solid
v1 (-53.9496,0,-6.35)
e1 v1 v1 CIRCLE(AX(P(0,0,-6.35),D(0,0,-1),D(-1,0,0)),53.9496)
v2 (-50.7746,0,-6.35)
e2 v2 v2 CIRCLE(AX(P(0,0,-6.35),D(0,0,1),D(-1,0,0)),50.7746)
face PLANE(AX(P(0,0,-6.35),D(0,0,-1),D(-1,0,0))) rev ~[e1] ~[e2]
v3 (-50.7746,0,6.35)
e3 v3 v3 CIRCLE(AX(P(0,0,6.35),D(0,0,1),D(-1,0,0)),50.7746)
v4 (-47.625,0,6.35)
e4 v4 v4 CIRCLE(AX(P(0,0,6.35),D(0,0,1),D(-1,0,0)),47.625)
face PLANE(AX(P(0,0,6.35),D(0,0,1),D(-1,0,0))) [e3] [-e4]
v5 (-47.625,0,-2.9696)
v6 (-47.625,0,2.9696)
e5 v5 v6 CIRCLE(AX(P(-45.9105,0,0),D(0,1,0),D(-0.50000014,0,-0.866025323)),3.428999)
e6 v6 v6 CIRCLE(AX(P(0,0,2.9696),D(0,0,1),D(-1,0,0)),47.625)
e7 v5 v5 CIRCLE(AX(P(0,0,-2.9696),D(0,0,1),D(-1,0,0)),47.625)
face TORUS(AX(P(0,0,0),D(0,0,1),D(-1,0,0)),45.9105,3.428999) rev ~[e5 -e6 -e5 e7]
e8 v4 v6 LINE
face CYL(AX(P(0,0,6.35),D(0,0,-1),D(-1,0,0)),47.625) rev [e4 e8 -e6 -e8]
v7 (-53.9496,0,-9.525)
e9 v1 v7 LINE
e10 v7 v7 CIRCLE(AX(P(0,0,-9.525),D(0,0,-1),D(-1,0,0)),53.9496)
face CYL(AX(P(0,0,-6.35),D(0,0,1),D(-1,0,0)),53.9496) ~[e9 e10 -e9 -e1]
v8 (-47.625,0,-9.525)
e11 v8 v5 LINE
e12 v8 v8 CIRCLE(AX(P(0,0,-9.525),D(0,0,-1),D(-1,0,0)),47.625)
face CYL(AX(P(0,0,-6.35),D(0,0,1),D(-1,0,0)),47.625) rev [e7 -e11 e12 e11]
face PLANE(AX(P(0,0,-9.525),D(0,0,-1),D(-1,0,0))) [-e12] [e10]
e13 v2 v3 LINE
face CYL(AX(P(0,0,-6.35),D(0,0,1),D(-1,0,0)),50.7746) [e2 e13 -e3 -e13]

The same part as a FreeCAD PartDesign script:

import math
import FreeCAD as App
import Part
import Sketcher
from FreeCAD import Vector
Q = App.Units.Quantity

doc = App.newDocument("Part")
body = doc.addObject("PartDesign::Body", "Body")

sketch1 = body.newObject("Sketcher::SketchObject", "Sketch")
sketch1.AttachmentSupport = (doc.getObject("XZ_Plane"), [""])
sketch1.MapMode = "FlatFace"
sketch1.addGeometry(Part.LineSegment(Vector(-50.8, -6.3, 0), Vector(-50.8, 6.3, 0)), False)
sketch1.addGeometry(Part.LineSegment(Vector(-50.8, 6.3, 0), Vector(-47.6, 6.3, 0)), False)
sketch1.addGeometry(Part.LineSegment(Vector(-47.6, 6.3, 0), Vector(-47.6, 3, 0)), False)
sketch1.addGeometry(Part.ArcOfCircle(Part.Circle(Vector(-45.9, 0, 0), Vector(0, 0, 1), 3.4), math.radians(120), math.radians(240)), False)
sketch1.addGeometry(Part.LineSegment(Vector(-47.6, -3, 0), Vector(-47.6, -6.3, 0)), False)
sketch1.addGeometry(Part.LineSegment(Vector(-47.6, -6.3, 0), Vector(-50.8, -6.3, 0)), False)
sketch1.addConstraint(Sketcher.Constraint("Coincident", 0, 2, 1, 1))
sketch1.addConstraint(Sketcher.Constraint("Coincident", 1, 2, 2, 1))
sketch1.addConstraint(Sketcher.Constraint("Coincident", 2, 2, 3, 1))
sketch1.addConstraint(Sketcher.Constraint("Coincident", 3, 2, 4, 1))
sketch1.addConstraint(Sketcher.Constraint("Coincident", 4, 2, 5, 1))
sketch1.addConstraint(Sketcher.Constraint("Coincident", 5, 2, 0, 1))
sketch1.addConstraint(Sketcher.Constraint("Vertical", 0))
sketch1.addConstraint(Sketcher.Constraint("Horizontal", 1))
sketch1.addConstraint(Sketcher.Constraint("Vertical", 2))
sketch1.addConstraint(Sketcher.Constraint("Vertical", 4))
sketch1.addConstraint(Sketcher.Constraint("Horizontal", 5))
sketch1.addConstraint(Sketcher.Constraint("Symmetric", 2, 2, 3, 2, -1))
sketch1.addConstraint(Sketcher.Constraint("Equal", 2, 4))
sketch1.addConstraint(Sketcher.Constraint("Radius", 3, Q("0.135 in")))
sketch1.addConstraint(Sketcher.Constraint("DistanceX", 1, 1, 1, 2, Q("0.124 in")))
sketch1.addConstraint(Sketcher.Constraint("DistanceY", -1, 1, 0, 2, Q("0.25 in")))
sketch1.addConstraint(Sketcher.Constraint("DistanceX", 1, 2, -1, 1, Q("1.875 in")))
sketch1.addConstraint(Sketcher.Constraint("DistanceX", 1, 2, 3, 3, Q("0.0675 in")))
revolution = body.newObject("PartDesign::Revolution", "Revolution")
revolution.Profile = sketch1
revolution.ReferenceAxis = (sketch1, ["V_Axis"])
revolution.Angle = 360

sketch2 = body.newObject("Sketcher::SketchObject", "Sketch001")
sketch2.AttachmentSupport = (doc.getObject("XY_Plane"), [""])
sketch2.MapMode = "FlatFace"
sketch2.AttachmentOffset = App.Placement(Vector(0, 0, -0.25 * 25.4), App.Rotation())
sketch2.addGeometry(Part.Circle(Vector(0, 0, 0), Vector(0, 0, 1), 54), False)
sketch2.addGeometry(Part.Circle(Vector(0, 0, 0), Vector(0, 0, 1), 48), False)
sketch2.addConstraint(Sketcher.Constraint("Coincident", 0, 3, -1, 1))
sketch2.addConstraint(Sketcher.Constraint("Coincident", 1, 3, -1, 1))
sketch2.addConstraint(Sketcher.Constraint("Diameter", 1, Q("3.75 in")))
sketch2.addConstraint(Sketcher.Constraint("Diameter", 0, Q("4.248 in")))
pad1 = body.newObject("PartDesign::Pad", "Pad")
pad1.Profile = sketch2
pad1.Length = Q("0.125 in")
pad1.Reversed = True

doc.recompute()
